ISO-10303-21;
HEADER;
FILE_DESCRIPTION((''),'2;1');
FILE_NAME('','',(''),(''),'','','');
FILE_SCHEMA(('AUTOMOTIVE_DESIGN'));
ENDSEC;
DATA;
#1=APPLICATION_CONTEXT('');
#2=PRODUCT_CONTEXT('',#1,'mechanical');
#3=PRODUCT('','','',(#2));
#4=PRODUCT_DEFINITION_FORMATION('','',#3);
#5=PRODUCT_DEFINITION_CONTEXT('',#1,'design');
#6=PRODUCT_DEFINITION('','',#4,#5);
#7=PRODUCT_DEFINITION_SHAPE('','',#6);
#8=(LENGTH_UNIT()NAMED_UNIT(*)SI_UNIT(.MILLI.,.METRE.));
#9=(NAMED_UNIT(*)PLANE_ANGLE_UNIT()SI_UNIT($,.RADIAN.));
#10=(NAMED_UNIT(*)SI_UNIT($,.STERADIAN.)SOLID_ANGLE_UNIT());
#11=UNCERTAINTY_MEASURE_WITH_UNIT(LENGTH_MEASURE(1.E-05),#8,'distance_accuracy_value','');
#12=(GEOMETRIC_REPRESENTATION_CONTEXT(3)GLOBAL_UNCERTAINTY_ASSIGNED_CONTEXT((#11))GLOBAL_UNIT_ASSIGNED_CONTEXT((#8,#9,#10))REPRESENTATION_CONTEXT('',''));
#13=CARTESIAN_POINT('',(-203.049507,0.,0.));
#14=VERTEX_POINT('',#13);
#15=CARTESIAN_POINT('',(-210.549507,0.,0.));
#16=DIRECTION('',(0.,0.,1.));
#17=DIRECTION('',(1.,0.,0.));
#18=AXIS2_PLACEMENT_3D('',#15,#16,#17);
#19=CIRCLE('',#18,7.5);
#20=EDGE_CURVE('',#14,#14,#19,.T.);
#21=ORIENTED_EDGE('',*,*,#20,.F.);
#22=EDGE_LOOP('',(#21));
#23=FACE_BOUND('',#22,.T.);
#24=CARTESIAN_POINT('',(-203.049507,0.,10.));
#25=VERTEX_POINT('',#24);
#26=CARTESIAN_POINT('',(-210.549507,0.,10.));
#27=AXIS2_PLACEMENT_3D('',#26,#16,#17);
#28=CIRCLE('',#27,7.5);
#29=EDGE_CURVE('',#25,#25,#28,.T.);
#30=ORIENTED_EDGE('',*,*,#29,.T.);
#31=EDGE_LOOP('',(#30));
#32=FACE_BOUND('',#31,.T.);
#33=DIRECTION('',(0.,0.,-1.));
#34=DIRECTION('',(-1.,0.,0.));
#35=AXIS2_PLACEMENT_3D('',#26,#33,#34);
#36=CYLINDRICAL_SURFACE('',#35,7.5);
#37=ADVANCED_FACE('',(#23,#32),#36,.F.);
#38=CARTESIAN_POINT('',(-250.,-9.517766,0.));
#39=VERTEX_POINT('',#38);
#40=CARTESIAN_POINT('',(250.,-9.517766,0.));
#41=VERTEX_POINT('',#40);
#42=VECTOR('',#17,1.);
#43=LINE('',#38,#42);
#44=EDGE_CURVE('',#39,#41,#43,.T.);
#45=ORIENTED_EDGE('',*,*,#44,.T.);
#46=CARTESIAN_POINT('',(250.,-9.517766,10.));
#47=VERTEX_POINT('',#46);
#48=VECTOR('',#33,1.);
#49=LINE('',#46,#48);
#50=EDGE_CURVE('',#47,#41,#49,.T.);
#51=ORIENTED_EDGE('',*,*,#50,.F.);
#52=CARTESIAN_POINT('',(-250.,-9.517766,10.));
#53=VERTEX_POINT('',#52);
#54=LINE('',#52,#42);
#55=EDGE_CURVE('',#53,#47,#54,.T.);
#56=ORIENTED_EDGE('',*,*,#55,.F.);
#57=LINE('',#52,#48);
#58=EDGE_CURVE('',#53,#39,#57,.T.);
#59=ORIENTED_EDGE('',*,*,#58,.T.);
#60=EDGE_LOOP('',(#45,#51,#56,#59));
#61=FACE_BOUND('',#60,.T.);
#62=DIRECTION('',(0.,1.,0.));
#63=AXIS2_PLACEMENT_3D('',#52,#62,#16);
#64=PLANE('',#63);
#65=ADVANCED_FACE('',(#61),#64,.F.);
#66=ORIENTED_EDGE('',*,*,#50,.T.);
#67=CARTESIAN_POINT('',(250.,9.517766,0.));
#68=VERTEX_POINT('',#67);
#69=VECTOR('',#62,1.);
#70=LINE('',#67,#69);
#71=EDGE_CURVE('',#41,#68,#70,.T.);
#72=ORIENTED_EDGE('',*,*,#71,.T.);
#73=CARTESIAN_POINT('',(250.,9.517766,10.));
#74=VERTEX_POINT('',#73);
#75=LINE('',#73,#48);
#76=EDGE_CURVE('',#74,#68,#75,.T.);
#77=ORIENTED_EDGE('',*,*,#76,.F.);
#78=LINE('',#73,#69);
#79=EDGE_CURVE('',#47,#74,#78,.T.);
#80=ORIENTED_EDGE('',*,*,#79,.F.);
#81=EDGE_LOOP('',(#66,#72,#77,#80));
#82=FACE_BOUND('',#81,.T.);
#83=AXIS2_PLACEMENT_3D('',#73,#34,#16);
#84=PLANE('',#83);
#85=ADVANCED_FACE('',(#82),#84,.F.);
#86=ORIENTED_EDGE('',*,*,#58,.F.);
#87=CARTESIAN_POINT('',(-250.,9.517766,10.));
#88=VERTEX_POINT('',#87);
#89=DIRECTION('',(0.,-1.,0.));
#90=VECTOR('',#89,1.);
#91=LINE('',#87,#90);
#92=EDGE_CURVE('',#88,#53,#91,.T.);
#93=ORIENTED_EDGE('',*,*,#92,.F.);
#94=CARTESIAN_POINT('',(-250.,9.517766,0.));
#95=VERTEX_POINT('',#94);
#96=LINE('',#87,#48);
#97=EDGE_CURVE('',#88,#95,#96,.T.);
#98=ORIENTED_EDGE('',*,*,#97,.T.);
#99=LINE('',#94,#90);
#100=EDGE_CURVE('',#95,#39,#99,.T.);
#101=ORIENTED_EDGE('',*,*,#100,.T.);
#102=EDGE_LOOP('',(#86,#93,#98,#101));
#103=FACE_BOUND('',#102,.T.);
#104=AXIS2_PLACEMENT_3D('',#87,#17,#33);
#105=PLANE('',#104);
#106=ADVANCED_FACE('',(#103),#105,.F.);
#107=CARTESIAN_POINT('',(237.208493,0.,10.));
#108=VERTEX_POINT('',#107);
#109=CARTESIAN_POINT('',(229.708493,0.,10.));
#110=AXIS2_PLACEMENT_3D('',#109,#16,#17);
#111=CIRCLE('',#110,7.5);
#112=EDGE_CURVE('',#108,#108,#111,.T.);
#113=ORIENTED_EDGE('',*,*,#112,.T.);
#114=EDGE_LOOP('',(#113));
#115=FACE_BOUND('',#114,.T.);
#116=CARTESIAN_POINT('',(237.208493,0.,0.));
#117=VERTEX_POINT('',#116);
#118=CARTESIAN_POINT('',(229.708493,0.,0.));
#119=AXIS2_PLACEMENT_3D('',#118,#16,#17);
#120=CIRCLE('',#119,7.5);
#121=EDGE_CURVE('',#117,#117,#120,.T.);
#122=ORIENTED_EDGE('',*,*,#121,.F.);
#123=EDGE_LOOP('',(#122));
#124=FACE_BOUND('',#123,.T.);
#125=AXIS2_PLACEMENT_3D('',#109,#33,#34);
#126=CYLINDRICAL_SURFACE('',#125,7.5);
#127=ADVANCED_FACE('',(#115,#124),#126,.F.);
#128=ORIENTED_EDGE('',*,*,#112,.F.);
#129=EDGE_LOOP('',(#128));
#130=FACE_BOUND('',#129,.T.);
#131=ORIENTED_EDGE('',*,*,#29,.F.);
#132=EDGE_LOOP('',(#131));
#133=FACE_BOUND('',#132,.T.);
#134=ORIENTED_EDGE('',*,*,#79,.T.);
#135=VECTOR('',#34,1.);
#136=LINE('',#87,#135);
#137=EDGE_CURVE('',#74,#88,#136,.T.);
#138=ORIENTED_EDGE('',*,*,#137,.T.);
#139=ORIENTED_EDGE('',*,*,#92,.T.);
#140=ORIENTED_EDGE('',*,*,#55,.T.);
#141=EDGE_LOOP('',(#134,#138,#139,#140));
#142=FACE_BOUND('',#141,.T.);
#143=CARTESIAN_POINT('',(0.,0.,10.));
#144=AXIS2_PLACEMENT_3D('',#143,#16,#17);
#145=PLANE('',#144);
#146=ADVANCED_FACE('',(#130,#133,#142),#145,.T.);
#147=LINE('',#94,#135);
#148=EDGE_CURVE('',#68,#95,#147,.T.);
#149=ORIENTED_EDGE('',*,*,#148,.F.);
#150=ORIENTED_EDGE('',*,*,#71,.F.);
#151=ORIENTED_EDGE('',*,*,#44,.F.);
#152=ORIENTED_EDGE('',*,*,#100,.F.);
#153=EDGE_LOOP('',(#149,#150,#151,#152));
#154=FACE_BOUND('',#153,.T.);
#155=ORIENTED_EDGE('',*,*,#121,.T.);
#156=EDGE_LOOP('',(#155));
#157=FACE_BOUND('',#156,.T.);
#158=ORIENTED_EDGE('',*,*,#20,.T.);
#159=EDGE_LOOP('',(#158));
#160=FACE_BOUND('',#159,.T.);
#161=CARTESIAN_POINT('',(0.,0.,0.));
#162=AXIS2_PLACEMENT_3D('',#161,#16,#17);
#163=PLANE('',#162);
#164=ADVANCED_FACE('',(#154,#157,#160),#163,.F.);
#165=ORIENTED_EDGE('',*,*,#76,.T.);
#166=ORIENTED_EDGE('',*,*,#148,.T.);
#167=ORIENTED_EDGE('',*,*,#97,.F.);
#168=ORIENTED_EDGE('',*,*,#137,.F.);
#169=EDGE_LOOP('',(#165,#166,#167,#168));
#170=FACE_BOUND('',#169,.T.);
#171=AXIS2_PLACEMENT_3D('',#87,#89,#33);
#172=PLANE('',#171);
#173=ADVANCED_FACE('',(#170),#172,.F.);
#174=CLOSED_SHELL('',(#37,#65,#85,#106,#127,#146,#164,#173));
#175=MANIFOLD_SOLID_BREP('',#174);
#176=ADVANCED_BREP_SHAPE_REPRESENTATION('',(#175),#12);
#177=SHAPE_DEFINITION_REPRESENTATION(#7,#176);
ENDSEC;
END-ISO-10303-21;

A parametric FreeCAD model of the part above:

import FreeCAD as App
import Part
import Sketcher

V = App.Vector
Q = App.Units.Quantity


def add_polygon(sketch, points):
    """Adds a closed chain of lines whose ends are joined by coincident constraints."""
    first, n = sketch.GeometryCount, len(points)
    for a, b in zip(points, points[1:] + points[:1]):
        sketch.addGeometry(Part.LineSegment(App.Vector(*a, 0), App.Vector(*b, 0)), False)
    for i in range(n):
        sketch.addConstraint(Sketcher.Constraint("Coincident", first + i, 2, first + (i + 1) % n, 1))

doc = App.newDocument("Part")
body = doc.addObject("PartDesign::Body", "Body")

sketch1 = body.newObject("Sketcher::SketchObject", "Sketch")
sketch1.AttachmentSupport = (doc.getObject("XY_Plane"), [""])
sketch1.MapMode = "FlatFace"
add_polygon(sketch1, [(-250, 10), (-250, -10), (250, -10), (250, 10)])
sketch1.addGeometry(Part.Circle(V(-211, 0, 0), V(0, 0, 1), 8), False)
sketch1.addGeometry(Part.Circle(V(230, 0, 0), V(0, 0, 1), 8), False)
sketch1.addConstraint([
    Sketcher.Constraint("Vertical", 0),
    Sketcher.Constraint("Horizontal", 1),
    Sketcher.Constraint("Vertical", 2),
    Sketcher.Constraint("Horizontal", 3),
    Sketcher.Constraint("Equal", 4, 5),
    Sketcher.Constraint("Symmetric", 0, 2, 2, 2, -1, 1),
    Sketcher.Constraint("PointOnObject", 4, 3, -1),
    Sketcher.Constraint("PointOnObject", 5, 3, -1),
    Sketcher.Constraint("Diameter", 4, Q("15 mm")),
    Sketcher.Constraint("DistanceX", 1, 1, 1, 2, Q("500 mm")),
    Sketcher.Constraint("DistanceX", 4, 3, 5, 3, Q("440.258 mm")),
    Sketcher.Constraint("DistanceY", 0, 2, 0, 1, Q("19.035533 mm")),
    Sketcher.Constraint("DistanceX", 4, 3, -1, 1, Q("210.549507 mm")),
])
pad1 = body.newObject("PartDesign::Pad", "Pad")
pad1.Profile = sketch1
pad1.Length = 10

doc.recompute()
